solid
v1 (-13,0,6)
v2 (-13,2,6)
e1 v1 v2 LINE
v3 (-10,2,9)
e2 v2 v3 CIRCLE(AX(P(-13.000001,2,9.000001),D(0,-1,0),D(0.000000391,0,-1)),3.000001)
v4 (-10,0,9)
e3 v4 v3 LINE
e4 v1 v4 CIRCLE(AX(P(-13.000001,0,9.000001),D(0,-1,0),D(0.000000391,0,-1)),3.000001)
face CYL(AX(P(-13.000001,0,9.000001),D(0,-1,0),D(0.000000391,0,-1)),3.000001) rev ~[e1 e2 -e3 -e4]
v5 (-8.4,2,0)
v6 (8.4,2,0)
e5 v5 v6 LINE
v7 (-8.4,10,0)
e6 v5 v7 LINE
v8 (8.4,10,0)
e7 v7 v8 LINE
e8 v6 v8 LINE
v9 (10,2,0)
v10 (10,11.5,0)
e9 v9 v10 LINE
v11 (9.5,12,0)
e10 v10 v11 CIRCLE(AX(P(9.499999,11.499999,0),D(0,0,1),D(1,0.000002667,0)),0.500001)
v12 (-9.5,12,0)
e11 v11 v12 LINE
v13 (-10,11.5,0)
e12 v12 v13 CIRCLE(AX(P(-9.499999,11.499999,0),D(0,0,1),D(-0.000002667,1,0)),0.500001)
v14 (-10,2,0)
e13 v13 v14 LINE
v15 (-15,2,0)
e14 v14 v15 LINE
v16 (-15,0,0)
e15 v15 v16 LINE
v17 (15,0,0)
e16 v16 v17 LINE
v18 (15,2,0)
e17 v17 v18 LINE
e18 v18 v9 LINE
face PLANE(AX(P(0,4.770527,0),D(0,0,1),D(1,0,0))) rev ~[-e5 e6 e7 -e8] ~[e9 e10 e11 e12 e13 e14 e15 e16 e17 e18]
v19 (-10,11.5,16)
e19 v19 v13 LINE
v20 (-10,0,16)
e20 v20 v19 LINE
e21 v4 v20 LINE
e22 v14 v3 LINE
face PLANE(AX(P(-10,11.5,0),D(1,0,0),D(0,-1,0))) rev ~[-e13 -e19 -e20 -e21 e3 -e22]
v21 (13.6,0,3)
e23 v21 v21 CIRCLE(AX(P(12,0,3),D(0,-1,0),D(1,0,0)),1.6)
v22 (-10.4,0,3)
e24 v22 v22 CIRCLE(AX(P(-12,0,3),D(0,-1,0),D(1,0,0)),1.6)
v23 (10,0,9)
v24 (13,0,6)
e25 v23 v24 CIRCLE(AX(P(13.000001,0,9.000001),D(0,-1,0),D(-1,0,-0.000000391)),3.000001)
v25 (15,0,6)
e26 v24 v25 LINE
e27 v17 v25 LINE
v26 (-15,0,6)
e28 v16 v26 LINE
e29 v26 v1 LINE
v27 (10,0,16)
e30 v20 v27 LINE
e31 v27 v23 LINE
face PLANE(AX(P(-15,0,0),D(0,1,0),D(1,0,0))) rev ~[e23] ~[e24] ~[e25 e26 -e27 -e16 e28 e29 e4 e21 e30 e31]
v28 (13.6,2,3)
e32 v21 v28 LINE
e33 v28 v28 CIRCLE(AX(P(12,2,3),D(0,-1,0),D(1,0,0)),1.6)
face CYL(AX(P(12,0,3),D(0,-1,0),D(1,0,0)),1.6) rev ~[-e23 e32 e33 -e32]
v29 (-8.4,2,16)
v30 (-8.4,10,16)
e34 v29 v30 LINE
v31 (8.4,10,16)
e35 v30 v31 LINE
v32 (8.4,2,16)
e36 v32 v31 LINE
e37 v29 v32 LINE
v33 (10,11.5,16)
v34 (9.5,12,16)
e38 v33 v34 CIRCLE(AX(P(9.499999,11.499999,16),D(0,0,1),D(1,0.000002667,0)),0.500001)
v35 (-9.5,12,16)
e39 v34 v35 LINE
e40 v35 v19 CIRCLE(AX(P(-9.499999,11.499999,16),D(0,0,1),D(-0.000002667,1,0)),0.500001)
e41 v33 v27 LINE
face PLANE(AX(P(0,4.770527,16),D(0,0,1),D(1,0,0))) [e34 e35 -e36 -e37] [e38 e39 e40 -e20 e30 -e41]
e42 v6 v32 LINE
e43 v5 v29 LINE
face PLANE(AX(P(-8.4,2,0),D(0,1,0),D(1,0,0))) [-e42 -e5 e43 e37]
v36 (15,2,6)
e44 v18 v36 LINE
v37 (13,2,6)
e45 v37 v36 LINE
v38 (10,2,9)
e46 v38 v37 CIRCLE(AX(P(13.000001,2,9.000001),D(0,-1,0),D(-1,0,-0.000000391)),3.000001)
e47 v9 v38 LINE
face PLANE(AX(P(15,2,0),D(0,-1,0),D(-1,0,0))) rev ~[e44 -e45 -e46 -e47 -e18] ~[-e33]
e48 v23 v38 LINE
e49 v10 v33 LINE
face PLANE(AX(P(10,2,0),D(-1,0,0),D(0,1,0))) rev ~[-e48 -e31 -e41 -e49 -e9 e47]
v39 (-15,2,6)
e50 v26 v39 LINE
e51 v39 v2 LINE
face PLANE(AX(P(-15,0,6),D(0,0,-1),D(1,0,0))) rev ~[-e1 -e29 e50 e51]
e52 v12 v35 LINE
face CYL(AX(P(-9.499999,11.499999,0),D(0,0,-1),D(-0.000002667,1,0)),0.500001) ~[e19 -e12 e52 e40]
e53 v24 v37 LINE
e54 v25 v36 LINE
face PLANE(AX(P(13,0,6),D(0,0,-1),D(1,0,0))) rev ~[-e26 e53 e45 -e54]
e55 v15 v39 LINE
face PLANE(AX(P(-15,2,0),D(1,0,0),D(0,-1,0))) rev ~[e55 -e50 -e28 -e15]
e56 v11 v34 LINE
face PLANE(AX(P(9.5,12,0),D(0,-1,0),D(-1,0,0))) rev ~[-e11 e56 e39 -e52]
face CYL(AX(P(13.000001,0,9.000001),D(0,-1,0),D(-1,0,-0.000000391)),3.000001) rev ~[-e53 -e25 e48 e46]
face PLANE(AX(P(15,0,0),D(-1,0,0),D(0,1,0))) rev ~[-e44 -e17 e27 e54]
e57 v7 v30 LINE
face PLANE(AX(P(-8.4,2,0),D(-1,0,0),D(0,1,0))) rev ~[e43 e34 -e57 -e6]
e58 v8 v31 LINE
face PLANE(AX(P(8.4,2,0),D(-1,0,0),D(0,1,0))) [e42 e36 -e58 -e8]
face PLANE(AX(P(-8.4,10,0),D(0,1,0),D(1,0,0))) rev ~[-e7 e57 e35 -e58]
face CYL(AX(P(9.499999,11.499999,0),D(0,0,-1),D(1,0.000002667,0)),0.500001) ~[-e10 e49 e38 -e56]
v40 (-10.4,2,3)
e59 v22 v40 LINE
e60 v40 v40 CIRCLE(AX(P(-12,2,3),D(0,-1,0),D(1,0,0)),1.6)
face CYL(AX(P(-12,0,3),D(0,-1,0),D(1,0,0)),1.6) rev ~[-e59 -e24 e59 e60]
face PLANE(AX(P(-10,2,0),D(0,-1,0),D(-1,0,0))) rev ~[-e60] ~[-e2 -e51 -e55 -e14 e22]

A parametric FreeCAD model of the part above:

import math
import FreeCAD as App
import Part
import Sketcher
from FreeCAD import Vector

doc = App.newDocument("Part")
body = doc.addObject("PartDesign::Body", "Body")

# Sketch on XY plane
sketch1 = body.newObject("Sketcher::SketchObject", "Sketch")
sketch1.AttachmentSupport = (doc.getObject("XY_Plane"), [""])
sketch1.MapMode = "FlatFace"
sketch1.addGeometry([
    Part.LineSegment(Vector(-15, 2, 0), Vector(-15, 0, 0)),  # 0
    Part.LineSegment(Vector(-15, 0, 0), Vector(15, 0, 0)),  # 1
    Part.LineSegment(Vector(15, 0, 0), Vector(15, 2, 0)),  # 2
    Part.LineSegment(Vector(15, 2, 0), Vector(10, 2, 0)),  # 3
    Part.LineSegment(Vector(10, 2, 0), Vector(10, 11.5, 0)),  # 4
    Part.ArcOfCircle(Part.Circle(Vector(9.499999, 11.499999, 0), Vector(0, 0, 1), 0.500001), math.radians(0.000153), math.radians(89.999847)),  # 5
    Part.LineSegment(Vector(9.5, 12, 0), Vector(-9.5, 12, 0)),  # 6
    Part.ArcOfCircle(Part.Circle(Vector(-9.499999, 11.499999, 0), Vector(0, 0, 1), 0.500001), math.radians(90.000153), math.radians(179.999847)),  # 7
    Part.LineSegment(Vector(-10, 11.5, 0), Vector(-10, 2, 0)),  # 8
    Part.LineSegment(Vector(-10, 2, 0), Vector(-15, 2, 0)),  # 9
    Part.LineSegment(Vector(8.4, 2, 0), Vector(-8.4, 2, 0)),  # 10
    Part.LineSegment(Vector(-8.4, 2, 0), Vector(-8.4, 10, 0)),  # 11
    Part.LineSegment(Vector(-8.4, 10, 0), Vector(8.4, 10, 0)),  # 12
    Part.LineSegment(Vector(8.4, 10, 0), Vector(8.4, 2, 0)),  # 13
], False)
sketch1.addConstraint([
    Sketcher.Constraint("Coincident", 0, 2, 1, 1),
    Sketcher.Constraint("Coincident", 1, 2, 2, 1),
    Sketcher.Constraint("Coincident", 2, 2, 3, 1),
    Sketcher.Constraint("Coincident", 3, 2, 4, 1),
    Sketcher.Constraint("Coincident", 4, 2, 5, 1),
    Sketcher.Constraint("Coincident", 5, 2, 6, 1),
    Sketcher.Constraint("Coincident", 6, 2, 7, 1),
    Sketcher.Constraint("Coincident", 7, 2, 8, 1),
    Sketcher.Constraint("Coincident", 8, 2, 9, 1),
    Sketcher.Constraint("Coincident", 9, 2, 0, 1),
    Sketcher.Constraint("Coincident", 10, 2, 11, 1),
    Sketcher.Constraint("Coincident", 11, 2, 12, 1),
    Sketcher.Constraint("Coincident", 12, 2, 13, 1),
    Sketcher.Constraint("Coincident", 13, 2, 10, 1),
    Sketcher.Constraint("Vertical", 0),
    Sketcher.Constraint("Horizontal", 1),
    Sketcher.Constraint("Vertical", 2),
    Sketcher.Constraint("Horizontal", 3),
    Sketcher.Constraint("Vertical", 4),
    Sketcher.Constraint("Horizontal", 6),
    Sketcher.Constraint("Vertical", 8),
    Sketcher.Constraint("Horizontal", 9),
    Sketcher.Constraint("Horizontal", 10),
    Sketcher.Constraint("Vertical", 11),
    Sketcher.Constraint("Horizontal", 12),
    Sketcher.Constraint("Vertical", 13),
    Sketcher.Constraint("Equal", 5, 7),
    Sketcher.Constraint("Symmetric", 0, 2, 1, 2, -1, 1),
    Sketcher.Constraint("Symmetric", 4, 2, 7, 2, -2),
    Sketcher.Constraint("Horizontal", 7, 3, 4, 2),
    Sketcher.Constraint("Horizontal", 3, 2, 8, 2),
    Sketcher.Constraint("Horizontal", 9, 2, 10, 2),
    Sketcher.Constraint("Vertical", 7, 3, 6, 2),
    Sketcher.Constraint("Radius", 5, 0.500001),
    Sketcher.Constraint("DistanceX", 1, 1, 1, 2, 30.0),
    Sketcher.Constraint("DistanceX", 3, 2, 3, 1, 5.0),
    Sketcher.Constraint("DistanceX", 6, 2, 6, 1, 19.0),
    Sketcher.Constraint("DistanceY", 0, 2, 0, 1, 2.0),
    Sketcher.Constraint("DistanceY", 11, 1, 11, 2, 8.0),
    Sketcher.Constraint("DistanceX", 10, 2, 10, 1, 16.8),
    Sketcher.Constraint("DistanceY", 4, 1, 4, 2, 9.5),
    Sketcher.Constraint("DistanceX", 10, 2, -1, 1, 8.4),
])
pad1 = body.newObject("PartDesign::Pad", "Pad")
pad1.Profile = sketch1
pad1.Length = 16

# Sketch on XZ plane
sketch2 = body.newObject("Sketcher::SketchObject", "Sketch001")
sketch2.AttachmentSupport = (doc.getObject("XZ_Plane"), [""])
sketch2.MapMode = "FlatFace"
sketch2.addGeometry([
    Part.Circle(Vector(-12, 3, 0), Vector(0, 0, 1), 1.6),  # 0
    Part.Circle(Vector(12, 3, 0), Vector(0, 0, 1), 1.6),  # 1
    Part.LineSegment(Vector(-10, 16, 0), Vector(-15, 16, 0)),  # 2
    Part.LineSegment(Vector(-15, 16, 0), Vector(-15, 6, 0)),  # 3
    Part.LineSegment(Vector(-15, 6, 0), Vector(-13, 6, 0)),  # 4
    Part.ArcOfCircle(Part.Circle(Vector(-13.000001, 9.000001, 0), Vector(0, 0, 1), 3.000001), math.radians(-89.999978), math.radians(-0.000022)),  # 5
    Part.LineSegment(Vector(-10, 9, 0), Vector(-10, 16, 0)),  # 6
    Part.LineSegment(Vector(15, 6, 0), Vector(15, 16, 0)),  # 7
    Part.LineSegment(Vector(15, 16, 0), Vector(10, 16, 0)),  # 8
    Part.LineSegment(Vector(10, 16, 0), Vector(10, 9, 0)),  # 9
    Part.ArcOfCircle(Part.Circle(Vector(13.000001, 9.000001, 0), Vector(0, 0, 1), 3.000001), math.radians(-179.999978), math.radians(-90.000022)),  # 10
    Part.LineSegment(Vector(13, 6, 0), Vector(15, 6, 0)),  # 11
], False)
sketch2.addConstraint([
    Sketcher.Constraint("Coincident", 2, 2, 3, 1),
    Sketcher.Constraint("Coincident", 3, 2, 4, 1),
    Sketcher.Constraint("Tangent", 4, 2, 5, 1),
    Sketcher.Constraint("Tangent", 5, 2, 6, 1),
    Sketcher.Constraint("Coincident", 6, 2, 2, 1),
    Sketcher.Constraint("Coincident", 7, 2, 8, 1),
    Sketcher.Constraint("Coincident", 8, 2, 9, 1),
    Sketcher.Constraint("Tangent", 9, 2, 10, 1),
    Sketcher.Constraint("Tangent", 10, 2, 11, 1),
    Sketcher.Constraint("Coincident", 11, 2, 7, 1),
    Sketcher.Constraint("Horizontal", 2),
    Sketcher.Constraint("Vertical", 3),
    Sketcher.Constraint("Horizontal", 4),
    Sketcher.Constraint("Vertical", 6),
    Sketcher.Constraint("Vertical", 7),
    Sketcher.Constraint("Horizontal", 8),
    Sketcher.Constraint("Vertical", 9),
    Sketcher.Constraint("Horizontal", 11),
    Sketcher.Constraint("Equal", 0, 1),
    Sketcher.Constraint("Equal", 5, 10),
    Sketcher.Constraint("Symmetric", 0, 3, 1, 3, -2),
    Sketcher.Constraint("Symmetric", 5, 3, 10, 3, -2),
    Sketcher.Constraint("Symmetric", 2, 2, 7, 2, -2),
    Sketcher.Constraint("Radius", 5, 3.000001),
    Sketcher.Constraint("Diameter", 0, 3.2),
    Sketcher.Constraint("DistanceX", 2, 2, 2, 1, 5.0),
    Sketcher.Constraint("DistanceY", 3, 2, 3, 1, 10.0),
    Sketcher.Constraint("DistanceX", 0, 3, -1, 1, 12.0),
    Sketcher.Constraint("DistanceY", -1, 1, 0, 3, 3.0),
    Sketcher.Constraint("DistanceX", 5, 3, -1, 1, 13.000001),
    Sketcher.Constraint("DistanceY", -1, 1, 5, 3, 9.000001),
])
pocket1 = body.newObject("PartDesign::Pocket", "Pocket")
pocket1.Profile = sketch2
pocket1.Length = 25

doc.recompute()
